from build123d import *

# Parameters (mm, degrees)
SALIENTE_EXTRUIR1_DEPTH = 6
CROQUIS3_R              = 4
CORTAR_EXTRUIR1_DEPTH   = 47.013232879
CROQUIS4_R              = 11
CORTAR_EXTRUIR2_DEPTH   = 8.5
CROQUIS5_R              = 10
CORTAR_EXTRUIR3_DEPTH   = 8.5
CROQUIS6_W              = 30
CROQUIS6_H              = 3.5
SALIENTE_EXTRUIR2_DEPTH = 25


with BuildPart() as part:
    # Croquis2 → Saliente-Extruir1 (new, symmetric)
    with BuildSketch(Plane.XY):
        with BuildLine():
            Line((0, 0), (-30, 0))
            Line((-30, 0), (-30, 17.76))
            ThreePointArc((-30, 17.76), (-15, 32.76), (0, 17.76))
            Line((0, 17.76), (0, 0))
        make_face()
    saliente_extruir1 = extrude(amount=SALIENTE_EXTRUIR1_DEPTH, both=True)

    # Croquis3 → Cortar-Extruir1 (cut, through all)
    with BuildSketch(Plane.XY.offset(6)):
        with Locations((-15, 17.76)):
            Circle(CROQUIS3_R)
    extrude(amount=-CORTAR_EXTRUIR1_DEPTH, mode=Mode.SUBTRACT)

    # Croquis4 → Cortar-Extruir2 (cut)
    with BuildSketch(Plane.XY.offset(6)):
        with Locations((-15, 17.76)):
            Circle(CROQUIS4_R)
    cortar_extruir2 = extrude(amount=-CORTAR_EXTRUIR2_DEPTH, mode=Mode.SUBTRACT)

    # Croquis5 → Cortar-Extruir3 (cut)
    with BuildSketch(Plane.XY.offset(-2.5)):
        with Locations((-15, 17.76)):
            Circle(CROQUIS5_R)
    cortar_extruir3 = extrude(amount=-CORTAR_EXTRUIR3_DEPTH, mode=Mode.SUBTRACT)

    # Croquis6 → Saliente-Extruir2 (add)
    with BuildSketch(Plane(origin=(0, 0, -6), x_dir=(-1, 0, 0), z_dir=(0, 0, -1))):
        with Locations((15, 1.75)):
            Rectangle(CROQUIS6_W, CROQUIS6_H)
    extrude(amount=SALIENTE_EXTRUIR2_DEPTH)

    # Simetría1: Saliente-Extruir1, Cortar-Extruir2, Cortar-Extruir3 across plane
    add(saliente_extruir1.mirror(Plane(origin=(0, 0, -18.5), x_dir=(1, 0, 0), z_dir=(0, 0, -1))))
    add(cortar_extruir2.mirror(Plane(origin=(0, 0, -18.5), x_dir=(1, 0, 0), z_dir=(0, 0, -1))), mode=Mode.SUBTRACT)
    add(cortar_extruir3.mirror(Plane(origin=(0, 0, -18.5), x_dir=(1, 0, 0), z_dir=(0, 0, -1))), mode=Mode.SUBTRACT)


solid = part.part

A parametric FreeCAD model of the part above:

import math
import FreeCAD as App
import Part
import Sketcher
Q = App.Units.Quantity


def add_polygon(sketch, points):
    """Adds a closed chain of lines whose ends are joined by coincident constraints."""
    first, n = sketch.GeometryCount, len(points)
    for a, b in zip(points, points[1:] + points[:1]):
        sketch.addGeometry(Part.LineSegment(App.Vector(*a, 0), App.Vector(*b, 0)), False)
    for i in range(n):
        sketch.addConstraint(Sketcher.Constraint("Coincident", first + i, 2, first + (i + 1) % n, 1))

doc = App.newDocument("Part")
params = doc.addObject("Spreadsheet::Sheet", "Params")
for row, (alias, value) in enumerate([
    ("sketch1_radius", "15 mm"),
    ("sketch1_height", "17.76 mm"),
    ("pad1_length", "12 mm"),
    ("sketch2_diameter", "8 mm"),
    ("sketch3_diameter", "22 mm"),
    ("pocket2_length", "8.5 mm"),
    ("sketch4_diameter", "20 mm"),
    ("pocket3_length", "8.5 mm"),
    ("sketch5_width", "30 mm"),
    ("sketch5_height", "3.5 mm"),
    ("pad2_length", "25 mm"),
], start=1):
    params.set(f"A{row}", alias)
    params.set(f"B{row}", "=" + value)
    params.setAlias(f"B{row}", alias)

body = doc.addObject("PartDesign::Body", "Body")

# Sketch on XY plane
sketch1 = body.newObject("Sketcher::SketchObject", "Sketch")
sketch1.AttachmentSupport = (doc.getObject("XY_Plane"), [""])
sketch1.MapMode = "FlatFace"
sketch1.addGeometry([
    Part.LineSegment(App.Vector(-30, 0, 0), App.Vector(0, 0, 0)),
    Part.LineSegment(App.Vector(0, 0, 0), App.Vector(0, 18, 0)),
    Part.ArcOfCircle(Part.Circle(App.Vector(-15, 18, 0), App.Vector(0, 0, 1), 15), math.radians(0), math.radians(180)),
    Part.LineSegment(App.Vector(-30, 18, 0), App.Vector(-30, 0, 0)),
], False)
sketch1.addConstraint([
    Sketcher.Constraint("Coincident", 0, 2, 1, 1),
    Sketcher.Constraint("Tangent", 1, 2, 2, 1),
    Sketcher.Constraint("Tangent", 2, 2, 3, 1),
    Sketcher.Constraint("Coincident", 3, 2, 0, 1),
    Sketcher.Constraint("Horizontal", 0),
    Sketcher.Constraint("Vertical", 1),
    Sketcher.Constraint("Vertical", 3),
    Sketcher.Constraint("Coincident", 0, 2, -1, 1),
    Sketcher.Constraint("Radius", 2, Q("15 mm")),
    Sketcher.Constraint("DistanceY", 1, 1, 1, 2, Q("17.76 mm")),
])
sketch1.setExpression("Constraints[8]", "Params.sketch1_radius")
sketch1.setExpression("Constraints[9]", "Params.sketch1_height")
pad1 = body.newObject("PartDesign::Pad", "Pad")
pad1.Profile = sketch1
pad1.setExpression("Length", "Params.pad1_length")
pad1.Midplane = True

# Sketch on XY plane
sketch2 = body.newObject("Sketcher::SketchObject", "Sketch001")
sketch2.AttachmentSupport = (doc.getObject("XY_Plane"), [""])
sketch2.MapMode = "FlatFace"
sketch2.AttachmentOffset = App.Placement(App.Vector(0, 0, 6), App.Rotation())
sketch2.addGeometry(Part.Circle(App.Vector(-15, 17.8, 0), App.Vector(0, 0, 1), 4), False)
sketch2.addConstraint([
    Sketcher.Constraint("Diameter", 0, Q("8 mm")),
    Sketcher.Constraint("DistanceX", 0, 3, -1, 1, Q("15 mm")),
    Sketcher.Constraint("DistanceY", -1, 1, 0, 3, Q("17.76 mm")),
])
sketch2.setExpression("Constraints[0]", "Params.sketch2_diameter")
pocket1 = body.newObject("PartDesign::Pocket", "Pocket")
pocket1.Profile = sketch2
pocket1.Type = "ThroughAll"

# Sketch on XY plane
sketch3 = body.newObject("Sketcher::SketchObject", "Sketch002")
sketch3.AttachmentSupport = (doc.getObject("XY_Plane"), [""])
sketch3.MapMode = "FlatFace"
sketch3.AttachmentOffset = App.Placement(App.Vector(0, 0, 6), App.Rotation())
sketch3.addGeometry(Part.Circle(App.Vector(-15, 18, 0), App.Vector(0, 0, 1), 11), False)
sketch3.addConstraint([
    Sketcher.Constraint("Diameter", 0, Q("22 mm")),
    Sketcher.Constraint("DistanceX", 0, 3, -1, 1, Q("15 mm")),
    Sketcher.Constraint("DistanceY", -1, 1, 0, 3, Q("17.76 mm")),
])
sketch3.setExpression("Constraints[0]", "Params.sketch3_diameter")
pocket2 = body.newObject("PartDesign::Pocket", "Pocket001")
pocket2.Profile = sketch3
pocket2.setExpression("Length", "Params.pocket2_length")

# Sketch on XY plane
sketch4 = body.newObject("Sketcher::SketchObject", "Sketch003")
sketch4.AttachmentSupport = (doc.getObject("XY_Plane"), [""])
sketch4.MapMode = "FlatFace"
sketch4.AttachmentOffset = App.Placement(App.Vector(0, 0, -2.5), App.Rotation())
sketch4.addGeometry(Part.Circle(App.Vector(-15, 18, 0), App.Vector(0, 0, 1), 10), False)
sketch4.addConstraint([
    Sketcher.Constraint("Diameter", 0, Q("20 mm")),
    Sketcher.Constraint("DistanceX", 0, 3, -1, 1, Q("15 mm")),
    Sketcher.Constraint("DistanceY", -1, 1, 0, 3, Q("17.76 mm")),
])
sketch4.setExpression("Constraints[0]", "Params.sketch4_diameter")
pocket3 = body.newObject("PartDesign::Pocket", "Pocket002")
pocket3.Profile = sketch4
pocket3.setExpression("Length", "Params.pocket3_length")

# Sketch on XY plane
sketch5 = body.newObject("Sketcher::SketchObject", "Sketch004")
sketch5.AttachmentSupport = (doc.getObject("XY_Plane"), [""])
sketch5.MapMode = "FlatFace"
sketch5.AttachmentOffset = App.Placement(App.Vector(0, 0, -6), App.Rotation())
add_polygon(sketch5, [(0, 3.5), (0, 0), (-30, 0), (-30, 3.5)])  # lines 0-3
sketch5.addConstraint([
    Sketcher.Constraint("Vertical", 0),
    Sketcher.Constraint("Horizontal", 1),
    Sketcher.Constraint("Vertical", 2),
    Sketcher.Constraint("Horizontal", 3),
    Sketcher.Constraint("Coincident", 0, 2, -1, 1),
    Sketcher.Constraint("DistanceX", 1, 2, 1, 1, Q("30 mm")),
    Sketcher.Constraint("DistanceY", 0, 2, 0, 1, Q("3.5 mm")),
])
sketch5.setExpression("Constraints[9]", "Params.sketch5_width")
sketch5.setExpression("Constraints[10]", "Params.sketch5_height")
pad2 = body.newObject("PartDesign::Pad", "Pad001")
pad2.Profile = sketch5
pad2.setExpression("Length", "Params.pad2_length")
pad2.Reversed = True
doc.recompute()

datumplane = body.newObject("PartDesign::Plane", "DatumPlane")
datumplane.AttachmentSupport = (doc.getObject("XY_Plane"), [""])
datumplane.MapMode = "FlatFace"
datumplane.AttachmentOffset = App.Placement(App.Vector(0, 0, -18.5), App.Rotation())
mirrored = body.newObject("PartDesign::Mirrored", "Mirrored")
mirrored.Originals = [pad1, pocket2, pocket3]
mirrored.MirrorPlane = (datumplane, [""])
body.Tip = mirrored

doc.recompute()
